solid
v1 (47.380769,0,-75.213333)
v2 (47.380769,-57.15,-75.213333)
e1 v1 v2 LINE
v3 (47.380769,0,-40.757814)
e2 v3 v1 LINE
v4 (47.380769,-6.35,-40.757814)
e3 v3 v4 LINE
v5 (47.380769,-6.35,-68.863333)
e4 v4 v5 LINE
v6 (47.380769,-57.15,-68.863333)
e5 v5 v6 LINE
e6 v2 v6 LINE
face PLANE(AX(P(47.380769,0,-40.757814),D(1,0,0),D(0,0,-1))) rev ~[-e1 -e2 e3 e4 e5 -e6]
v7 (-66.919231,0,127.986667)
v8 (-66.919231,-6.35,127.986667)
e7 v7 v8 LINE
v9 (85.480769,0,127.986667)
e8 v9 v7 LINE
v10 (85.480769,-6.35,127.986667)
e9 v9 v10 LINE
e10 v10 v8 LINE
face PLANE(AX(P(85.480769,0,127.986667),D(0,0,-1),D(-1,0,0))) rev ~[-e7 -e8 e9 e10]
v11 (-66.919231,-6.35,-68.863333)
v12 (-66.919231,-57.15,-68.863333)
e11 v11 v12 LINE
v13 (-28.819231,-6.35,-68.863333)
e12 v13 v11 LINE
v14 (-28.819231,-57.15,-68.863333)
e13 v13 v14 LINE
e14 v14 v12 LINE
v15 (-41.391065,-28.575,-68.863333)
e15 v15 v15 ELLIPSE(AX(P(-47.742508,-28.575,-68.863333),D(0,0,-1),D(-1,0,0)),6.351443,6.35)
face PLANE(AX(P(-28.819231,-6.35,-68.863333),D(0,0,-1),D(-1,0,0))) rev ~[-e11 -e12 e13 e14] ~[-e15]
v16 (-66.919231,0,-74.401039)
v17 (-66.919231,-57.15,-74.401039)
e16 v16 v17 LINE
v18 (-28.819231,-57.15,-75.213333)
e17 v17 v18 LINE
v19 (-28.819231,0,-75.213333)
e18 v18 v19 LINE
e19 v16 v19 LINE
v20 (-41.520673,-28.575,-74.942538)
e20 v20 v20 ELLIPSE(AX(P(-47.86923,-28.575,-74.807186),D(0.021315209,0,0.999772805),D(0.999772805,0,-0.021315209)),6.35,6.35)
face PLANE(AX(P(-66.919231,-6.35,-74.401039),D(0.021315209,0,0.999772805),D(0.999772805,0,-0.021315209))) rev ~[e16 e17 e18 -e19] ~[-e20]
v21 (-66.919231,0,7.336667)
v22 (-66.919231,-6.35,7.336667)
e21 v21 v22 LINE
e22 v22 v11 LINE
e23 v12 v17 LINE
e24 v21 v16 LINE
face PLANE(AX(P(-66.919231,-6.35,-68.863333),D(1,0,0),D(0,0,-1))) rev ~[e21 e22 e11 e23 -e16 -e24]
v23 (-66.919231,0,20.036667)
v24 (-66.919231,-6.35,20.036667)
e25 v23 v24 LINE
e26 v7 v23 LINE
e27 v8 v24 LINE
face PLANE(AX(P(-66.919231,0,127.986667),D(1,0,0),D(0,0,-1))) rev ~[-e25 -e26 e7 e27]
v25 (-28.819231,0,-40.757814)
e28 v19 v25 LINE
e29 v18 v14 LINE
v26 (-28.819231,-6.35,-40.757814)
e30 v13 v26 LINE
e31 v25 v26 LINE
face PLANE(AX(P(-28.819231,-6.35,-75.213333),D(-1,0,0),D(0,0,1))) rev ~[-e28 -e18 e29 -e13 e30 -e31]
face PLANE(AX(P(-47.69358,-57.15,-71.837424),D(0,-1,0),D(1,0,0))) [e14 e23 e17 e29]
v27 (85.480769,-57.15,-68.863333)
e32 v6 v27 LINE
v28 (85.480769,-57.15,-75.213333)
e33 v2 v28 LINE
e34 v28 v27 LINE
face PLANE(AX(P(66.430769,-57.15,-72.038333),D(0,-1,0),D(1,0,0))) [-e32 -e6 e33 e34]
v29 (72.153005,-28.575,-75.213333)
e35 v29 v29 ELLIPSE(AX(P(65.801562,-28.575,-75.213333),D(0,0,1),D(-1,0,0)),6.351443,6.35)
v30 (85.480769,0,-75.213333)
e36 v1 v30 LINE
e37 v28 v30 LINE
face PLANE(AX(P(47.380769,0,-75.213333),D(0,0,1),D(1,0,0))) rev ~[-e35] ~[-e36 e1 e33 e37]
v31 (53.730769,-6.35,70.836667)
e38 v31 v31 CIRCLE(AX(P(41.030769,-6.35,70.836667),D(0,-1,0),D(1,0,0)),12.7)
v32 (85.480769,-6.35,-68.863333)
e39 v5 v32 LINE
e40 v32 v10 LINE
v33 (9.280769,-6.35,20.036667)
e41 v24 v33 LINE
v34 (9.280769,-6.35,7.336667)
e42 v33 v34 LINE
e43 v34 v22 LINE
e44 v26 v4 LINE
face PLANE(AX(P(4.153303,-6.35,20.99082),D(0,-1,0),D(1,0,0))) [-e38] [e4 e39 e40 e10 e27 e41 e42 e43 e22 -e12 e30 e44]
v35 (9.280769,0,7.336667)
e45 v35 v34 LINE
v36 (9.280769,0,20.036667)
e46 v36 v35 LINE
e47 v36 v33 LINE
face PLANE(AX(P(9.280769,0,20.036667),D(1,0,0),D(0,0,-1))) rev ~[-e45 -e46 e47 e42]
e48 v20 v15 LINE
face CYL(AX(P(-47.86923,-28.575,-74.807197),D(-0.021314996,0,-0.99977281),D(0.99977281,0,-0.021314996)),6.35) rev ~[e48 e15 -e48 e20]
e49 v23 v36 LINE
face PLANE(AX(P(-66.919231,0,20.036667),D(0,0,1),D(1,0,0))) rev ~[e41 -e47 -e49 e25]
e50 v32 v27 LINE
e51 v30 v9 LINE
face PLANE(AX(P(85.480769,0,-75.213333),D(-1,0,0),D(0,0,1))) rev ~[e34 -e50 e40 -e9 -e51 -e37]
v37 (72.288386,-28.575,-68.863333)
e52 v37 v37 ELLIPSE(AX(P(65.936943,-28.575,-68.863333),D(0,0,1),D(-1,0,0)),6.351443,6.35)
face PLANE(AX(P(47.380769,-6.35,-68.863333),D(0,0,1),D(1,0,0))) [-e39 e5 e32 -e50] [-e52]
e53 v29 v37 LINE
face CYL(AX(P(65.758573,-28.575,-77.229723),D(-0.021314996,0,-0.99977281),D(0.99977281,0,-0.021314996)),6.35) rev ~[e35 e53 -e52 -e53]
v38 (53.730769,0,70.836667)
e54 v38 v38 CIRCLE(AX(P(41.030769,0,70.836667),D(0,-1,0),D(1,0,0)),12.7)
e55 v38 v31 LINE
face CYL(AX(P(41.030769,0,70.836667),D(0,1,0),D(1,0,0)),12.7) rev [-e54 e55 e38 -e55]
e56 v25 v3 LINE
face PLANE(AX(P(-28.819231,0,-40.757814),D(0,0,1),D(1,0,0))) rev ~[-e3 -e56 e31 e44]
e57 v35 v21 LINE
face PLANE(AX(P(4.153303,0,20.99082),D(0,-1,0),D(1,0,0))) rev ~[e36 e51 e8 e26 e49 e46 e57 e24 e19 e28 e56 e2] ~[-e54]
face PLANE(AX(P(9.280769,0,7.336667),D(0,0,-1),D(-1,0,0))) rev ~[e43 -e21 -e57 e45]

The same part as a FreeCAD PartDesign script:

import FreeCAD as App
import Part
import Sketcher
Q = App.Units.Quantity

doc = App.newDocument("Part")
body = doc.addObject("PartDesign::Body", "Body")

# Sketch on XZ plane
sketch1 = body.newObject("Sketcher::SketchObject", "Sketch")
sketch1.AttachmentSupport = (doc.getObject("XZ_Plane"), [""])
sketch1.MapMode = "FlatFace"
sketch1.addGeometry([
    Part.LineSegment(App.Vector(85.480769, 127.986667, 0), App.Vector(-66.919231, 127.986667, 0)),  # 0
    Part.LineSegment(App.Vector(-66.919231, 127.986667, 0), App.Vector(-66.919231, 20.036667, 0)),  # 1
    Part.LineSegment(App.Vector(-66.919231, 20.036667, 0), App.Vector(9.280769, 20.036667, 0)),  # 2
    Part.LineSegment(App.Vector(9.280769, 20.036667, 0), App.Vector(9.280769, 7.336667, 0)),  # 3
    Part.LineSegment(App.Vector(9.280769, 7.336667, 0), App.Vector(-66.919231, 7.336667, 0)),  # 4
    Part.LineSegment(App.Vector(-66.919231, 7.336667, 0), App.Vector(-66.919231, -74.401039, 0)),  # 5
    Part.LineSegment(App.Vector(-66.919231, -74.401039, 0), App.Vector(-28.819231, -75.213333, 0)),  # 6
    Part.LineSegment(App.Vector(-28.819231, -75.213333, 0), App.Vector(-28.819231, -40.757814, 0)),  # 7
    Part.LineSegment(App.Vector(-28.819231, -40.757814, 0), App.Vector(47.380769, -40.757814, 0)),  # 8
    Part.LineSegment(App.Vector(47.380769, -40.757814, 0), App.Vector(47.380769, -75.213333, 0)),  # 9
    Part.LineSegment(App.Vector(47.380769, -75.213333, 0), App.Vector(85.480769, -75.213333, 0)),  # 10
    Part.LineSegment(App.Vector(85.480769, -75.213333, 0), App.Vector(85.480769, 127.986667, 0)),  # 11
    Part.Circle(App.Vector(41.030769, 70.836667, 0), App.Vector(0, 0, 1), 12.7),  # 12
], False)
sketch1.addConstraint([
    Sketcher.Constraint("Coincident", 0, 2, 1, 1),
    Sketcher.Constraint("Coincident", 1, 2, 2, 1),
    Sketcher.Constraint("Coincident", 2, 2, 3, 1),
    Sketcher.Constraint("Coincident", 3, 2, 4, 1),
    Sketcher.Constraint("Coincident", 4, 2, 5, 1),
    Sketcher.Constraint("Coincident", 5, 2, 6, 1),
    Sketcher.Constraint("Coincident", 6, 2, 7, 1),
    Sketcher.Constraint("Coincident", 7, 2, 8, 1),
    Sketcher.Constraint("Coincident", 8, 2, 9, 1),
    Sketcher.Constraint("Coincident", 9, 2, 10, 1),
    Sketcher.Constraint("Coincident", 10, 2, 11, 1),
    Sketcher.Constraint("Coincident", 11, 2, 0, 1),
    Sketcher.Constraint("Horizontal", 0),
    Sketcher.Constraint("Vertical", 1),
    Sketcher.Constraint("Horizontal", 2),
    Sketcher.Constraint("Vertical", 3),
    Sketcher.Constraint("Horizontal", 4),
    Sketcher.Constraint("Vertical", 5),
    Sketcher.Constraint("Vertical", 7),
    Sketcher.Constraint("Horizontal", 8),
    Sketcher.Constraint("Vertical", 9),
    Sketcher.Constraint("Horizontal", 10),
    Sketcher.Constraint("Vertical", 11),
    Sketcher.Constraint("Horizontal", 6, 2, 9, 2),
    Sketcher.Constraint("Vertical", 1, 2, 4, 2),
    Sketcher.Constraint("Equal", 4, 8),
    Sketcher.Constraint("Diameter", 12, Q("1 in")),
    Sketcher.Constraint("DistanceX", 0, 2, 0, 1, Q("6 in")),
    Sketcher.Constraint("DistanceX", 2, 1, 2, 2, Q("3 in")),
    Sketcher.Constraint("DistanceY", 11, 1, 11, 2, Q("8 in")),
    Sketcher.Constraint("DistanceX", 10, 1, 10, 2, Q("1.5 in")),
    Sketcher.Constraint("DistanceY", 3, 2, 3, 1, Q("0.5 in")),
    Sketcher.Constraint("DistanceY", 1, 2, 12, 3, Q("2 in")),
    Sketcher.Constraint("DistanceY", 1, 2, 1, 1, Q("4.25 in")),
    Sketcher.Constraint("DistanceX", 0, 2, 12, 3, Q("4.25 in")),
    Sketcher.Constraint("DistanceY", 7, 1, 7, 2, 34.455519),
    Sketcher.Constraint("Distance", 6, 38.108658),
    Sketcher.Constraint("DistanceX", -1, 1, 12, 3, 41.030769),
    Sketcher.Constraint("DistanceY", 5, 2, -1, 1, 74.401039),
])
pad1 = body.newObject("PartDesign::Pad", "Pad")
pad1.Profile = sketch1
pad1.Length = Q("0.25 in")

# Sketch on XZ plane
sketch2 = body.newObject("Sketcher::SketchObject", "Sketch001")
sketch2.AttachmentSupport = (doc.getObject("XZ_Plane"), [""])
sketch2.MapMode = "FlatFace"
sketch2.AttachmentOffset = App.Placement(App.Vector(0, 0, 0.25 * 25.4), App.Rotation())
sketch2.addGeometry([
    Part.LineSegment(App.Vector(-28.819231, -68.863333, 0), App.Vector(-66.919231, -68.863333, 0)),  # 0
    Part.LineSegment(App.Vector(-66.919231, -68.863333, 0), App.Vector(-66.919231, -74.401039, 0)),  # 1
    Part.LineSegment(App.Vector(-66.919231, -74.401039, 0), App.Vector(-28.819231, -75.213333, 0)),  # 2
    Part.LineSegment(App.Vector(-28.819231, -75.213333, 0), App.Vector(-28.819231, -68.863333, 0)),  # 3
    Part.LineSegment(App.Vector(47.380769, -68.863333, 0), App.Vector(47.380769, -75.213333, 0)),  # 4
    Part.LineSegment(App.Vector(47.380769, -75.213333, 0), App.Vector(85.480769, -75.213333, 0)),  # 5
    Part.LineSegment(App.Vector(85.480769, -75.213333, 0), App.Vector(85.480769, -68.863333, 0)),  # 6
    Part.LineSegment(App.Vector(85.480769, -68.863333, 0), App.Vector(47.380769, -68.863333, 0)),  # 7
], False)
sketch2.addConstraint([
    Sketcher.Constraint("Coincident", 0, 2, 1, 1),
    Sketcher.Constraint("Coincident", 1, 2, 2, 1),
    Sketcher.Constraint("Coincident", 2, 2, 3, 1),
    Sketcher.Constraint("Coincident", 3, 2, 0, 1),
    Sketcher.Constraint("Coincident", 4, 2, 5, 1),
    Sketcher.Constraint("Coincident", 5, 2, 6, 1),
    Sketcher.Constraint("Coincident", 6, 2, 7, 1),
    Sketcher.Constraint("Coincident", 7, 2, 4, 1),
    Sketcher.Constraint("Horizontal", 0),
    Sketcher.Constraint("Vertical", 1),
    Sketcher.Constraint("Vertical", 3),
    Sketcher.Constraint("Vertical", 4),
    Sketcher.Constraint("Horizontal", 5),
    Sketcher.Constraint("Vertical", 6),
    Sketcher.Constraint("Horizontal", 7),
    Sketcher.Constraint("Horizontal", 2, 2, 4, 2),
    Sketcher.Constraint("Horizontal", 3, 2, 6, 2),
    Sketcher.Constraint("Equal", 0, 5),
    Sketcher.Constraint("DistanceX", 0, 2, 0, 1, Q("1.5 in")),
    Sketcher.Constraint("DistanceX", 2, 2, 4, 2, Q("3 in")),
    Sketcher.Constraint("DistanceY", 3, 1, 3, 2, Q("0.25 in")),
    Sketcher.Constraint("Distance", 2, 38.108658),
    Sketcher.Constraint("DistanceX", 0, 2, -1, 1, 66.919231),
    Sketcher.Constraint("DistanceY", 1, 2, -1, 1, 74.401039),
])
pad2 = body.newObject("PartDesign::Pad", "Pad001")
pad2.Profile = sketch2
pad2.Length = Q("2 in")

# Sketch on an angled plane
sketch3 = body.newObject("Sketcher::SketchObject", "Sketch002")
sketch3.Placement = App.Placement(App.Vector(-1.615918, 0, -75.79331), App.Rotation(App.Vector(0.99977281, 0, -0.021314996), App.Vector(0, -1.000000001, 0), App.Vector(-0.021314996, 0, -0.99977281), "ZXY"))
sketch3.addGeometry([
    Part.Circle(App.Vector(-46.263823, 28.575, 0), App.Vector(0, 0, 1), 6.35),
    Part.Circle(App.Vector(67.389801, 28.575, 0), App.Vector(0, 0, 1), 6.35),
], False)
sketch3.addConstraint([
    Sketcher.Constraint("Equal", 0, 1),
    Sketcher.Constraint("Horizontal", 0, 3, 1, 3),
    Sketcher.Constraint("Diameter", 0, Q("0.5 in")),
    Sketcher.Constraint("DistanceY", -1, 1, 0, 3, Q("1.125 in")),
    Sketcher.Constraint("DistanceX", -1, 1, 1, 3, 67.389801),
    Sketcher.Constraint("DistanceX", 0, 3, -1, 1, 46.263823),
])
pocket1 = body.newObject("PartDesign::Pocket", "Pocket")
pocket1.Profile = sketch3
pocket1.Length = Q("1 in")

doc.recompute()
